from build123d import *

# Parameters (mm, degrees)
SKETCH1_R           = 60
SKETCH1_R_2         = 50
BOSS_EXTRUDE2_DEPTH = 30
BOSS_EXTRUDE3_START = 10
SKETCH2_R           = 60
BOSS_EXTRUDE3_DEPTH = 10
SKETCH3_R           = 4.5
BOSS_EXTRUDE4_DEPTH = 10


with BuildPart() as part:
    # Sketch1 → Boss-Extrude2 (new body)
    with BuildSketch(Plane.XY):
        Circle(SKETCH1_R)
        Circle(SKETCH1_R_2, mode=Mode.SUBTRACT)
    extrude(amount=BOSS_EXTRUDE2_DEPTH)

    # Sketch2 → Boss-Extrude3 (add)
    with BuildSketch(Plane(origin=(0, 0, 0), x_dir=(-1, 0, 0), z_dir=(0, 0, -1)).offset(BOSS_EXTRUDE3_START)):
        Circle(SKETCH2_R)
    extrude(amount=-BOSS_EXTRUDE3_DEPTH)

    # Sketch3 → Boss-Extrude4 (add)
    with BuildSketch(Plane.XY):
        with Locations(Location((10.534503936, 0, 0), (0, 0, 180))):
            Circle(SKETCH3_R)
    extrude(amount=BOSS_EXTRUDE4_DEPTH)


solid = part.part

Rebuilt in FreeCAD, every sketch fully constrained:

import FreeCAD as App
import Part
import Sketcher
Q = App.Units.Quantity

doc = App.newDocument("Part")
body = doc.addObject("PartDesign::Body", "Body")

# Sketch on XY plane
sketch1 = body.newObject("Sketcher::SketchObject", "Sketch")
sketch1.AttachmentSupport = (doc.getObject("XY_Plane"), [""])
sketch1.MapMode = "FlatFace"
sketch1.addGeometry(Part.Circle(App.Vector(0, 0, 0), App.Vector(0, 0, 1), 60), False)
sketch1.addGeometry(Part.Circle(App.Vector(0, 0, 0), App.Vector(0, 0, 1), 50), False)
sketch1.addConstraint(Sketcher.Constraint("Coincident", 0, 3, -1, 1))
sketch1.addConstraint(Sketcher.Constraint("Coincident", 1, 3, -1, 1))
sketch1.addConstraint(Sketcher.Constraint("Diameter", 0, Q("120 mm")))
sketch1.addConstraint(Sketcher.Constraint("Diameter", 1, Q("100 mm")))
pad1 = body.newObject("PartDesign::Pad", "Pad")
pad1.Profile = sketch1
pad1.Length = 30

# Sketch on XY plane
sketch2 = body.newObject("Sketcher::SketchObject", "Sketch001")
sketch2.AttachmentSupport = (doc.getObject("XY_Plane"), [""])
sketch2.MapMode = "FlatFace"
sketch2.AttachmentOffset = App.Placement(App.Vector(0, 0, -10), App.Rotation())
sketch2.addGeometry(Part.Circle(App.Vector(0, 0, 0), App.Vector(0, 0, 1), 60), False)
sketch2.addConstraint(Sketcher.Constraint("Coincident", 0, 3, -1, 1))
sketch2.addConstraint(Sketcher.Constraint("Diameter", 0, Q("120 mm")))
pad2 = body.newObject("PartDesign::Pad", "Pad001")
pad2.Profile = sketch2
pad2.Length = 10

# Sketch on XY plane
sketch3 = body.newObject("Sketcher::SketchObject", "Sketch002")
sketch3.AttachmentSupport = (doc.getObject("XY_Plane"), [""])
sketch3.MapMode = "FlatFace"
sketch3.addGeometry(Part.Circle(App.Vector(10.5, 0, 0), App.Vector(0, 0, 1), 4.5), False)
sketch3.addConstraint(Sketcher.Constraint("PointOnObject", 0, 3, -1))
sketch3.addConstraint(Sketcher.Constraint("Diameter", 0, Q("9 mm")))
sketch3.addConstraint(Sketcher.Constraint("DistanceX", -1, 1, 0, 3, Q("10.534504 mm")))
pad3 = body.newObject("PartDesign::Pad", "Pad002")
pad3.Profile = sketch3
pad3.Length = 10

doc.recompute()
